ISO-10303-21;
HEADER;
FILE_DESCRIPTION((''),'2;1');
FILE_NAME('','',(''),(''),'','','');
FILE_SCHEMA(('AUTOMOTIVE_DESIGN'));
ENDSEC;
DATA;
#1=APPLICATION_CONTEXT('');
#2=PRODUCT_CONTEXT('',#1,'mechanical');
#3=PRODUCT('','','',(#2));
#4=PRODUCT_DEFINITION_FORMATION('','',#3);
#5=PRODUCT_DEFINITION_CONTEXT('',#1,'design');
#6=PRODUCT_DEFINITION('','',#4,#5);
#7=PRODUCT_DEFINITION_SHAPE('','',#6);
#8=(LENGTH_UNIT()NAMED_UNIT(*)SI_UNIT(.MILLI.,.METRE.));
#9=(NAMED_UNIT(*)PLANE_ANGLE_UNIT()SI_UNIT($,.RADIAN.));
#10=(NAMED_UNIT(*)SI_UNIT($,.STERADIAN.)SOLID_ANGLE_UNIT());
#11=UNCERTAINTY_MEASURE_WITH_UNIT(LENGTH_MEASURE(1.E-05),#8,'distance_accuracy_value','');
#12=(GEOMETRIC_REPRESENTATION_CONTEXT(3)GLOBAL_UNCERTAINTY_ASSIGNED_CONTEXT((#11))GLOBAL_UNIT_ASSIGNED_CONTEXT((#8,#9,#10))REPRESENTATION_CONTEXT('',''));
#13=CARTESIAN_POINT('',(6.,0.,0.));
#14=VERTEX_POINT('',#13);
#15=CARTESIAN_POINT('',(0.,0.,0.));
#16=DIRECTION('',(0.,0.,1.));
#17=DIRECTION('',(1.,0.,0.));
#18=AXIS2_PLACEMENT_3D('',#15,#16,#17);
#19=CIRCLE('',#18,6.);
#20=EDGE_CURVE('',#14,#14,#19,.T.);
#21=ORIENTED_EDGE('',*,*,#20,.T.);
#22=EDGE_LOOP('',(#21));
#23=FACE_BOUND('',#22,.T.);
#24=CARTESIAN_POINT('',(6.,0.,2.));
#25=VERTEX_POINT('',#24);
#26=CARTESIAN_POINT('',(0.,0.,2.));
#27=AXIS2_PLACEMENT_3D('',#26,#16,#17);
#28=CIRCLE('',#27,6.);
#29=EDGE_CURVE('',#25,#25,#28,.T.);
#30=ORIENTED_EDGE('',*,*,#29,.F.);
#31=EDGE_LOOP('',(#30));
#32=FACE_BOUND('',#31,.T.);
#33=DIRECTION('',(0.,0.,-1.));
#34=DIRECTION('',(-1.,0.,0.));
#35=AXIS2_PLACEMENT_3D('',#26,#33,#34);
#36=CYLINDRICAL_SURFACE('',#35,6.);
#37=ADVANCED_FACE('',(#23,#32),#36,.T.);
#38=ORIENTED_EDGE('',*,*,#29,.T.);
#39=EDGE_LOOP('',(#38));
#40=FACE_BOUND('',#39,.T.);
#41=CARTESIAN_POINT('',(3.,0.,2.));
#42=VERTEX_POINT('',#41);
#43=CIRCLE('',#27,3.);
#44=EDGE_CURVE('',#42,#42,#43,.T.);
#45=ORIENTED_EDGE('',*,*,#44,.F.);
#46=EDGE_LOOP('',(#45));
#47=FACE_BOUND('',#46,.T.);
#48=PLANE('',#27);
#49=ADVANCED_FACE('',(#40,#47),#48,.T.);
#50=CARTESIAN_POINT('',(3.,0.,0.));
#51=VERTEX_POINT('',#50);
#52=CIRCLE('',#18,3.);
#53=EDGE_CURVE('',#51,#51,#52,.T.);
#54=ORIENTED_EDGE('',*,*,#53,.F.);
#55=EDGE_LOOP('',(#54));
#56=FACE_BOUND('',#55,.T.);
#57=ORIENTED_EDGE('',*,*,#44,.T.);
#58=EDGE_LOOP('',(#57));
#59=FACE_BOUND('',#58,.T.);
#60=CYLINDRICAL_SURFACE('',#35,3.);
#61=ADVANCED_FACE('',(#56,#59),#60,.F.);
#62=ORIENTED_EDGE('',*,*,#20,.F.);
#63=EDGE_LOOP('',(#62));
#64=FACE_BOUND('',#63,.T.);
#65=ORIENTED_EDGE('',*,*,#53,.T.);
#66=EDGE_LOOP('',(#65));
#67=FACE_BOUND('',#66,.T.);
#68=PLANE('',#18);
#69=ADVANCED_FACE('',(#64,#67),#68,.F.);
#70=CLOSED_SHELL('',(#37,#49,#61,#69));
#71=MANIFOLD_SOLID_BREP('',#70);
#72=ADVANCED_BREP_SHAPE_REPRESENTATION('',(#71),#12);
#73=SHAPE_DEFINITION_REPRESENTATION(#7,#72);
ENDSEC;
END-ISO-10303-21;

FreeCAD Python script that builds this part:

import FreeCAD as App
import Part
import Sketcher
from FreeCAD import Vector
Q = App.Units.Quantity

doc = App.newDocument("Part")
params = doc.addObject("Spreadsheet::Sheet", "Params")
for row, (alias, value) in enumerate([
    ("sketch1_diameter", "12 mm"),
    ("sketch1_diameter2", "6 mm"),
    ("pad1_length", "2 mm"),
], start=1):
    params.set(f"A{row}", alias)
    params.set(f"B{row}", "=" + value)
    params.setAlias(f"B{row}", alias)

body = doc.addObject("PartDesign::Body", "Body")

# Sketch on XY plane
sketch1 = body.newObject("Sketcher::SketchObject", "Sketch")
sketch1.AttachmentSupport = (doc.getObject("XY_Plane"), [""])
sketch1.MapMode = "FlatFace"
sketch1.addGeometry([
    Part.Circle(Vector(0, 0, 0), Vector(0, 0, 1), 6),
    Part.Circle(Vector(0, 0, 0), Vector(0, 0, 1), 3),
], False)
sketch1.addConstraint([
    Sketcher.Constraint("Coincident", 0, 3, -1, 1),
    Sketcher.Constraint("Coincident", 1, 3, -1, 1),
    Sketcher.Constraint("Diameter", 0, Q("12 mm")),
    Sketcher.Constraint("Diameter", 1, Q("6 mm")),
])
sketch1.setExpression("Constraints[2]", "Params.sketch1_diameter")
sketch1.setExpression("Constraints[3]", "Params.sketch1_diameter2")
pad1 = body.newObject("PartDesign::Pad", "Pad")
pad1.Profile = sketch1
pad1.setExpression("Length", "Params.pad1_length")

doc.recompute()
